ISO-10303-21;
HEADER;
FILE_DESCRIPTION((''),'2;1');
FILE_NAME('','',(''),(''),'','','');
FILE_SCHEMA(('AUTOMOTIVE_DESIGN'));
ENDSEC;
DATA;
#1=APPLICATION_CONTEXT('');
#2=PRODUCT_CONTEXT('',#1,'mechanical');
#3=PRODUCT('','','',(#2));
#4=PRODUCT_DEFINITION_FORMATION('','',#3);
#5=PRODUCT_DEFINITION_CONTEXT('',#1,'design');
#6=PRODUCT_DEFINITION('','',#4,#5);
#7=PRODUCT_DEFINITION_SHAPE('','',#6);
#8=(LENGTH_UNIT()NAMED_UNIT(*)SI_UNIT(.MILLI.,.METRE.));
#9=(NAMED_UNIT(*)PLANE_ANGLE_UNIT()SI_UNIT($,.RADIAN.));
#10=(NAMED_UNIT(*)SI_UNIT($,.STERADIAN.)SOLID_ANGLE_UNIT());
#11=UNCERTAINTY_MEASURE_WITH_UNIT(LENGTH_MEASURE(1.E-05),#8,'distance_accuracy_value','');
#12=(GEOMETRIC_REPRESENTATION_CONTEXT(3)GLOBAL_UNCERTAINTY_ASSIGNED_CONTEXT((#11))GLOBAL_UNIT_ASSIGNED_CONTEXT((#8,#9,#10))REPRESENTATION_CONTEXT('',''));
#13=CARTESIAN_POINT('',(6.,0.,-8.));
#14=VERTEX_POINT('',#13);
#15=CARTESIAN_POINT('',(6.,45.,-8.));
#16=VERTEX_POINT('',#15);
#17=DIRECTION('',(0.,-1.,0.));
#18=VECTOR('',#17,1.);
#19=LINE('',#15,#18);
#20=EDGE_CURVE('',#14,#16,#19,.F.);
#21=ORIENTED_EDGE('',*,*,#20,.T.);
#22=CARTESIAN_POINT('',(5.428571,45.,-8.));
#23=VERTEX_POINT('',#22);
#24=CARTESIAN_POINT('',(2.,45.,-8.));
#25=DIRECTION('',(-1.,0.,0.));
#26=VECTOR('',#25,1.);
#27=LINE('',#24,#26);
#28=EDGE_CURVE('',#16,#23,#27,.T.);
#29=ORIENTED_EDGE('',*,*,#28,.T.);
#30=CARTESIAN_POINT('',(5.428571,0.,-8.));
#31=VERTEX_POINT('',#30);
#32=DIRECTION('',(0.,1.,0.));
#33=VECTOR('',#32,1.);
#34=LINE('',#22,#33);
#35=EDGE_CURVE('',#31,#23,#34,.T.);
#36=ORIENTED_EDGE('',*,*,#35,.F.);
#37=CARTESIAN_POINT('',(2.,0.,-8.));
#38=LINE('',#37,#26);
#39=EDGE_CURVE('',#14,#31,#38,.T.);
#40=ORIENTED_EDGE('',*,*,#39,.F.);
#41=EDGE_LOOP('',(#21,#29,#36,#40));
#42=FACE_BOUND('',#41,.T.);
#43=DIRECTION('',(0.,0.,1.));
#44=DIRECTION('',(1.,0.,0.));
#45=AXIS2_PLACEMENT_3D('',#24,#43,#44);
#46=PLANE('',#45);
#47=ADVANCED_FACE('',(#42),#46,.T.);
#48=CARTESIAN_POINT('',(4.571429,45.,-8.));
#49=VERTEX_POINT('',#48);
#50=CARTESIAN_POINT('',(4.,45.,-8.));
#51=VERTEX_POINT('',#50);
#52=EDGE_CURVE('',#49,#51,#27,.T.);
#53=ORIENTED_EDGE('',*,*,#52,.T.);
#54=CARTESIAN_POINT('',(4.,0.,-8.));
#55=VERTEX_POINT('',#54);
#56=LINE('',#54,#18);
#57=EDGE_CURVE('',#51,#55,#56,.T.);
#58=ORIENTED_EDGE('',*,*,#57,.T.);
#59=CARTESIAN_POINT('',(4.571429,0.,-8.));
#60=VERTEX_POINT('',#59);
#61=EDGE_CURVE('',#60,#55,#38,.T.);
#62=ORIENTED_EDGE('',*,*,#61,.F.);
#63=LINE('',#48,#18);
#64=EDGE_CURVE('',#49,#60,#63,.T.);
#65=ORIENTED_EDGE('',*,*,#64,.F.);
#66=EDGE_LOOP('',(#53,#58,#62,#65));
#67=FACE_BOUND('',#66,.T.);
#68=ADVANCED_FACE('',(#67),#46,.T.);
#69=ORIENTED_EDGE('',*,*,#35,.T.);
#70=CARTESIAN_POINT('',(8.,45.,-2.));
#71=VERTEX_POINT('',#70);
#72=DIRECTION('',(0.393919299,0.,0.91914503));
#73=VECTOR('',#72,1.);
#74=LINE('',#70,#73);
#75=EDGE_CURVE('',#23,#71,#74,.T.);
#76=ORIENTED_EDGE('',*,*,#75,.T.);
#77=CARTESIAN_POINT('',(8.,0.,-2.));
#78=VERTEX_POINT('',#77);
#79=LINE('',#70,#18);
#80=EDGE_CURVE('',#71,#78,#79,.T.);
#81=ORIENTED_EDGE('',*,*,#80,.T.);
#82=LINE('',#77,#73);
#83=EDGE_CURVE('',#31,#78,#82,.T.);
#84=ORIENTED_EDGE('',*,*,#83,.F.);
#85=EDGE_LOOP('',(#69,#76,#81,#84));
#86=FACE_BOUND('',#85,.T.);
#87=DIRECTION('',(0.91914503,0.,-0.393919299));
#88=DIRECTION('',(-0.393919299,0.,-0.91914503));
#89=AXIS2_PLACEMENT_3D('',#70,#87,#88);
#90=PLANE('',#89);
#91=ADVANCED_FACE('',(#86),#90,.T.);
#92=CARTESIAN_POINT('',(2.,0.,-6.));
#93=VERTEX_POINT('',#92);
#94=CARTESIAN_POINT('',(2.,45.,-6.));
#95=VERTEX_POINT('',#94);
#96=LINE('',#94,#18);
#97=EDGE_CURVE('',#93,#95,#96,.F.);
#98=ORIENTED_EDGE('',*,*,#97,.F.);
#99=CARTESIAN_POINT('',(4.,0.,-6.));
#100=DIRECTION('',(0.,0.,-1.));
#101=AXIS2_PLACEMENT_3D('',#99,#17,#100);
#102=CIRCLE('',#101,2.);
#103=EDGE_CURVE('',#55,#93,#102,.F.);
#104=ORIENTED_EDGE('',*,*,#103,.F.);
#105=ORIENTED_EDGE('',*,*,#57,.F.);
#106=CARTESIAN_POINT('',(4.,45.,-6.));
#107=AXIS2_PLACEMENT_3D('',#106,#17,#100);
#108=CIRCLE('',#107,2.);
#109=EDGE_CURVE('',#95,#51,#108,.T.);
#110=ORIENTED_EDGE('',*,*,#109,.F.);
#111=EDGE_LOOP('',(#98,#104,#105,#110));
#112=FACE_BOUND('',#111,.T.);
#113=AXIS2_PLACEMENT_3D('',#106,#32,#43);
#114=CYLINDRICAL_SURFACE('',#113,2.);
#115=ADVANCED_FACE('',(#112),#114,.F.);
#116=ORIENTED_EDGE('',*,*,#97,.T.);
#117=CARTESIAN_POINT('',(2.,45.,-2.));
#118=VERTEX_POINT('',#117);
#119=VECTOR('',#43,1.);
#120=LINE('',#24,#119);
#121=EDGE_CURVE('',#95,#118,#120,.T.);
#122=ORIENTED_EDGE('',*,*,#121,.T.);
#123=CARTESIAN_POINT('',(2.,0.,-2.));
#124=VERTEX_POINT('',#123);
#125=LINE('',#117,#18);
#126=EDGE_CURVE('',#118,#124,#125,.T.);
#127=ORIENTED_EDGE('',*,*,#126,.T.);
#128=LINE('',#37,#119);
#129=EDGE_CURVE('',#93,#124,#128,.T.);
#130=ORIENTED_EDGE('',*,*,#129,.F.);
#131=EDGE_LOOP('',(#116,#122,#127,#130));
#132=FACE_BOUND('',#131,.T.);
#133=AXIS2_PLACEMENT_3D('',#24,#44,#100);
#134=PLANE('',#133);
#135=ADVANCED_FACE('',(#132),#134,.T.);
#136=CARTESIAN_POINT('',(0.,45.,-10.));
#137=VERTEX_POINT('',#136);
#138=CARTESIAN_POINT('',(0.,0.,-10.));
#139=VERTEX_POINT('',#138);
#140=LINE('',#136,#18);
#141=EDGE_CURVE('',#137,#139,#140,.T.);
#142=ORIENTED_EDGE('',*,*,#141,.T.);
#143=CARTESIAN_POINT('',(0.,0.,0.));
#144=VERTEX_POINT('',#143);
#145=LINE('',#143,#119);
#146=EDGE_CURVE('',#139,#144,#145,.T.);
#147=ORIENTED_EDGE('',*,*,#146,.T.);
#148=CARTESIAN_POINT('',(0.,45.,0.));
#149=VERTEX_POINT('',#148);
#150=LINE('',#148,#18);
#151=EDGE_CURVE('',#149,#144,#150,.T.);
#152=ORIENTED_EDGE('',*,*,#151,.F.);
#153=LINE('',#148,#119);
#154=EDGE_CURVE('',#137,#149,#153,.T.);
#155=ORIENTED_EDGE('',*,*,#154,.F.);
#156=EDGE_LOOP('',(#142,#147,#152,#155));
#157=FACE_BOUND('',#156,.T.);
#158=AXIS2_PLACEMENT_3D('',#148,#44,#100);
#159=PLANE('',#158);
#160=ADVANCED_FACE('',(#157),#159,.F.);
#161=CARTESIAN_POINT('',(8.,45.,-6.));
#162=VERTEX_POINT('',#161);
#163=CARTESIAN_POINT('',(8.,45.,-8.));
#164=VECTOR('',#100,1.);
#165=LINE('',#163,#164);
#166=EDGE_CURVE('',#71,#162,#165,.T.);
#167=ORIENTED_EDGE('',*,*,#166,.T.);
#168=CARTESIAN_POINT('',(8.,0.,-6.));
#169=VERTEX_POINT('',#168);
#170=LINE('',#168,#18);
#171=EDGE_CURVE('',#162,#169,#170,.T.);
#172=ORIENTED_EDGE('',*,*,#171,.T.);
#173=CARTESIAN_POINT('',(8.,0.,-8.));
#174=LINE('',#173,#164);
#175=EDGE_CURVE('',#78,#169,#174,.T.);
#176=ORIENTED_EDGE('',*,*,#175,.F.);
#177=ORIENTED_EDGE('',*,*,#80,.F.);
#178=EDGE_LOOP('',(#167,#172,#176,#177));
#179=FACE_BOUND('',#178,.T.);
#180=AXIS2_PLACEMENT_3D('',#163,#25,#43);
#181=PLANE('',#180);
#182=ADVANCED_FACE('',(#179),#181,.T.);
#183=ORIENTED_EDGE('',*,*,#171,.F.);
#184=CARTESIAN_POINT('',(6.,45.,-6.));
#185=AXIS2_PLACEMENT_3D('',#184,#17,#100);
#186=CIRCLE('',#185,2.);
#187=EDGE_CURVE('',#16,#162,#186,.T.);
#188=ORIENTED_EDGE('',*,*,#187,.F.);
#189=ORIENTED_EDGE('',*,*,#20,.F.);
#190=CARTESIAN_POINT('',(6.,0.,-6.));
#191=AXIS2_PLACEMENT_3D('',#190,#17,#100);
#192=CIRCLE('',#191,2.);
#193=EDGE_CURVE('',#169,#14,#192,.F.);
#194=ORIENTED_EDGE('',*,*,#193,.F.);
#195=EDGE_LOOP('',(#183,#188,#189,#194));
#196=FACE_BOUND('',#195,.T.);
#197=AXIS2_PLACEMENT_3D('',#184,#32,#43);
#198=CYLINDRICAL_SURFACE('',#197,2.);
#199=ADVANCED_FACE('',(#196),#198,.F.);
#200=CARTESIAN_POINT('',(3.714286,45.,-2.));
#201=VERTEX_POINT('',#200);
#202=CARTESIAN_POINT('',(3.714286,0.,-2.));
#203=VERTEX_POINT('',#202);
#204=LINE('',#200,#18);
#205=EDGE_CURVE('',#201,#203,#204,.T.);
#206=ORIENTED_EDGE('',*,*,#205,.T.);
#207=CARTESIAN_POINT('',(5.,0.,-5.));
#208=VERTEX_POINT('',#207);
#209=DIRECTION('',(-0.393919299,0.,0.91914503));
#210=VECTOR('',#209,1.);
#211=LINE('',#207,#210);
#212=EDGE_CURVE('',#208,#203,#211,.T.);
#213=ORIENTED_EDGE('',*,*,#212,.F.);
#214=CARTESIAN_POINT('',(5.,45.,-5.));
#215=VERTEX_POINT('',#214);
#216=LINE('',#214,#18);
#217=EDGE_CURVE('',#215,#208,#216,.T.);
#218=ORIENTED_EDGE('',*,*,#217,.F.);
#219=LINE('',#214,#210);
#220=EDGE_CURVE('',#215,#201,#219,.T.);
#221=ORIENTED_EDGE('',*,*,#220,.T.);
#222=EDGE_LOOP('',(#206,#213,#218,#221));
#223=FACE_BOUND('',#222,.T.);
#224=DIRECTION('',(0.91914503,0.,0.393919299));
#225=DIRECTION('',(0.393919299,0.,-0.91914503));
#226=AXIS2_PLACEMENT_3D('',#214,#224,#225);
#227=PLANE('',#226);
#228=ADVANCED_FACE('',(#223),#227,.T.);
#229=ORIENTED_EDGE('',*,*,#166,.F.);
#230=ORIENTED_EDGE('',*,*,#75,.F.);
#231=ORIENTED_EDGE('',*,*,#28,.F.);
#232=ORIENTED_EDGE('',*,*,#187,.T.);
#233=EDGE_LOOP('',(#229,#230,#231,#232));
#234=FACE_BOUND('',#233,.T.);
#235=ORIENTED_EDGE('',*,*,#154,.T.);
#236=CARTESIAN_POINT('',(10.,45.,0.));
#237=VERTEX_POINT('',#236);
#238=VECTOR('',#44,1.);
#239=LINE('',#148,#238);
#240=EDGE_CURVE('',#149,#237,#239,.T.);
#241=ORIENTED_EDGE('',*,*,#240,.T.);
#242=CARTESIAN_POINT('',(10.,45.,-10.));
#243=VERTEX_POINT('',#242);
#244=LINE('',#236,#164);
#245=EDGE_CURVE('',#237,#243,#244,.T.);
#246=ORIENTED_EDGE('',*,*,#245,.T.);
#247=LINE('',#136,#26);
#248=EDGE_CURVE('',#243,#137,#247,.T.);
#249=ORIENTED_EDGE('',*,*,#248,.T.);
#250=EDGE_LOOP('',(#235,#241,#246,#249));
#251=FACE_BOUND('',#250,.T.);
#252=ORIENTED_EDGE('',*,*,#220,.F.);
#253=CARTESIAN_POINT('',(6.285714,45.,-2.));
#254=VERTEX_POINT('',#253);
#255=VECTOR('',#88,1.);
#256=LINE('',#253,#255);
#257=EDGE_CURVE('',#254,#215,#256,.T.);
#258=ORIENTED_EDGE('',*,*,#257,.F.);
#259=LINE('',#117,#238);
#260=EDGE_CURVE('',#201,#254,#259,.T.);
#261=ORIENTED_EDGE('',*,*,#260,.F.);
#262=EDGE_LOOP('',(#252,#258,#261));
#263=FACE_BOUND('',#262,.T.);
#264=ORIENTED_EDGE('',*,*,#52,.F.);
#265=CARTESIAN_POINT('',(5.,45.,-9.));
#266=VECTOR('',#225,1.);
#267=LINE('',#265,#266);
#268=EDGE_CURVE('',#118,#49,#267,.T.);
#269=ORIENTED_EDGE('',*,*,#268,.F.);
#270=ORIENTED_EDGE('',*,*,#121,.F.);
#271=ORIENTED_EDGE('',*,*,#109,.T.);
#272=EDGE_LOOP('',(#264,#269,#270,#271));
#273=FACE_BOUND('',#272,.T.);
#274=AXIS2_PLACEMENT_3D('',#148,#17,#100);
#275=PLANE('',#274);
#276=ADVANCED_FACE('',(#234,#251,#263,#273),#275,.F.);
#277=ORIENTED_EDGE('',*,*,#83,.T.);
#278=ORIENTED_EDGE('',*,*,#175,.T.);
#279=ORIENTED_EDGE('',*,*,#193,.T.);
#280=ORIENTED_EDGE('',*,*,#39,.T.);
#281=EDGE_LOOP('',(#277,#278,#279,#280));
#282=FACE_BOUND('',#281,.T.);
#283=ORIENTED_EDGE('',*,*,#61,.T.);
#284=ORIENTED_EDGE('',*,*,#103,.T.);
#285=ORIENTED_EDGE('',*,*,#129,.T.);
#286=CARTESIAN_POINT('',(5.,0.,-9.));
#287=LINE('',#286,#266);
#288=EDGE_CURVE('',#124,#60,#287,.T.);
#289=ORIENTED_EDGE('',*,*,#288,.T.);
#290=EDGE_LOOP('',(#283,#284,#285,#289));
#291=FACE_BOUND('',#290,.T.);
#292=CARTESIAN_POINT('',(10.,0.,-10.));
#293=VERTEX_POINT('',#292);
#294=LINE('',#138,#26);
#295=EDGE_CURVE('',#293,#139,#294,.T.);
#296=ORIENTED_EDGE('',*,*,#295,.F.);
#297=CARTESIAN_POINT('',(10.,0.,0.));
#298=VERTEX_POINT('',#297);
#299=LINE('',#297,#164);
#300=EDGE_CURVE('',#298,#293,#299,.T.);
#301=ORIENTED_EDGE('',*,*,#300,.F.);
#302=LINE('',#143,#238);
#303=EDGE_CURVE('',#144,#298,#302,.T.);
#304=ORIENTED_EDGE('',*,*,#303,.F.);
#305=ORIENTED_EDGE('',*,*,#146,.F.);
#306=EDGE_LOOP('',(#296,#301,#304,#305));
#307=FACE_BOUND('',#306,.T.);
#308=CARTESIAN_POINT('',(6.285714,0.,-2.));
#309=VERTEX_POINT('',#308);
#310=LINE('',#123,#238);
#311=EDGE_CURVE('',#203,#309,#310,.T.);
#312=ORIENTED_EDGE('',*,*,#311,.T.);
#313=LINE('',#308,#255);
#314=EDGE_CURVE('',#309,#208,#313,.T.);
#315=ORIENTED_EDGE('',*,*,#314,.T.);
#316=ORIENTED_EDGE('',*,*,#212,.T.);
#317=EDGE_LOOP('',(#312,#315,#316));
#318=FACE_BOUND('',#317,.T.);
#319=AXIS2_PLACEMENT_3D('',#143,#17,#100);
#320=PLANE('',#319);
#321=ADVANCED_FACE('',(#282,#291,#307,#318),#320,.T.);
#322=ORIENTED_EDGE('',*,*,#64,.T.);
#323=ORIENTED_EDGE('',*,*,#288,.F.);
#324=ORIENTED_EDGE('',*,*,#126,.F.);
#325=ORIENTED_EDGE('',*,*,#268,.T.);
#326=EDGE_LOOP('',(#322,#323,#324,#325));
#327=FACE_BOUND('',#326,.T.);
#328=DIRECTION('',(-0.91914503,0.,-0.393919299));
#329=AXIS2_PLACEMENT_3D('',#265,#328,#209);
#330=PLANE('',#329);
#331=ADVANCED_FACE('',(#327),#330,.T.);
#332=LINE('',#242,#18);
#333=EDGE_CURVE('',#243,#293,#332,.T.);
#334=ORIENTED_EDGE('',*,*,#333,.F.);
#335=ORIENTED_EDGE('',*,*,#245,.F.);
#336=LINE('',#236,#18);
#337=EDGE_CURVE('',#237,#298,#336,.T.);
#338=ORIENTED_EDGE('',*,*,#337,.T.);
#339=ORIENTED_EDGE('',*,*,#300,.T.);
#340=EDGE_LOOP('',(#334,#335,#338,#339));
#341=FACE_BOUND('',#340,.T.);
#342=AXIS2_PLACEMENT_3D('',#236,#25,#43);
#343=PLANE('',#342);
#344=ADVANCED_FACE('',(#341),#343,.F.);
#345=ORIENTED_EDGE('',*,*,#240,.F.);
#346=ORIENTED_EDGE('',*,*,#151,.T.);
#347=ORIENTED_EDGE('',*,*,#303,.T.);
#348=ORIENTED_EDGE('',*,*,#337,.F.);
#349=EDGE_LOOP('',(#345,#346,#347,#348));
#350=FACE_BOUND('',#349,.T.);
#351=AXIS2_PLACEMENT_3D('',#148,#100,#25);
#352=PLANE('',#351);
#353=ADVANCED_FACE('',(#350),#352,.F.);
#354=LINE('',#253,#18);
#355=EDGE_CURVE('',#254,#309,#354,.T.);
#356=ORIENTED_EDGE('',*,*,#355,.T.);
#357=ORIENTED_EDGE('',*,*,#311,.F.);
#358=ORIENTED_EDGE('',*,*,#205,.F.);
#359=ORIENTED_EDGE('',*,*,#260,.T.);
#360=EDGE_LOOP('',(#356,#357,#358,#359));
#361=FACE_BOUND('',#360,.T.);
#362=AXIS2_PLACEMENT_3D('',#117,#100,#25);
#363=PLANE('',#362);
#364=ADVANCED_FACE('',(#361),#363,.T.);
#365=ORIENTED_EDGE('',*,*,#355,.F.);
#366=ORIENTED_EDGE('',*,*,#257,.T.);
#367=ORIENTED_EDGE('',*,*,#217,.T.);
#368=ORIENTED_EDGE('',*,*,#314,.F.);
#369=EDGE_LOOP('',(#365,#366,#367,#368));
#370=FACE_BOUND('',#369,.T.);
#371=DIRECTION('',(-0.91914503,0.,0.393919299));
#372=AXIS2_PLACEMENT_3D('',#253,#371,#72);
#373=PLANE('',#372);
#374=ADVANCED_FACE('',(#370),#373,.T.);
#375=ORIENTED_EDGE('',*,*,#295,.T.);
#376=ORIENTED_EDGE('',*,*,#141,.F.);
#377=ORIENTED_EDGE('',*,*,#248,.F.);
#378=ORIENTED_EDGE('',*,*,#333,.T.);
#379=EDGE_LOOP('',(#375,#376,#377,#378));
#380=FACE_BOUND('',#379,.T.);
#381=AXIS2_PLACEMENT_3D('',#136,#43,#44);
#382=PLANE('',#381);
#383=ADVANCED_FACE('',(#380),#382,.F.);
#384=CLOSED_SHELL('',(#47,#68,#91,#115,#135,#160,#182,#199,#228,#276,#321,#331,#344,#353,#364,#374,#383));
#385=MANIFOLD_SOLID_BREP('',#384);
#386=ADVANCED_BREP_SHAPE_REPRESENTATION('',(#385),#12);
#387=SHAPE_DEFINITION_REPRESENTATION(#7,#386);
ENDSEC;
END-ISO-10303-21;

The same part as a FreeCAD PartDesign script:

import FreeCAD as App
import Part
import Sketcher


def edges_at(feature, points):
    """Names of the edges that pass closest to the given points."""
    edges = feature.Shape.Edges
    near = lambda p: min(range(len(edges)), key=lambda i: edges[i].distToShape(Part.Vertex(*p))[0])
    return sorted({f"Edge{near(p) + 1}" for p in points})

doc = App.newDocument("Part")
body = doc.addObject("PartDesign::Body", "Body")

# Sketch on XZ plane
sketch1 = body.newObject("Sketcher::SketchObject", "Sketch")
sketch1.AttachmentSupport = (doc.getObject("XZ_Plane"), [""])
sketch1.MapMode = "FlatFace"
sketch1.addGeometry(Part.LineSegment(App.Vector(0, -10, 0), App.Vector(0, 0, 0)), False)
sketch1.addGeometry(Part.LineSegment(App.Vector(0, 0, 0), App.Vector(10, 0, 0)), False)
sketch1.addGeometry(Part.LineSegment(App.Vector(10, 0, 0), App.Vector(10, -10, 0)), False)
sketch1.addGeometry(Part.LineSegment(App.Vector(10, -10, 0), App.Vector(0, -10, 0)), False)
sketch1.addGeometry(Part.LineSegment(App.Vector(8, -2, 0), App.Vector(2, -2, 0)), False)
sketch1.addGeometry(Part.LineSegment(App.Vector(2, -2, 0), App.Vector(2, -8, 0)), False)
sketch1.addGeometry(Part.LineSegment(App.Vector(2, -8, 0), App.Vector(8, -8, 0)), False)
sketch1.addGeometry(Part.LineSegment(App.Vector(8, -8, 0), App.Vector(8, -2, 0)), False)
sketch1.addConstraint(Sketcher.Constraint("Coincident", 0, 2, 1, 1))
sketch1.addConstraint(Sketcher.Constraint("Coincident", 1, 2, 2, 1))
sketch1.addConstraint(Sketcher.Constraint("Coincident", 2, 2, 3, 1))
sketch1.addConstraint(Sketcher.Constraint("Coincident", 3, 2, 0, 1))
sketch1.addConstraint(Sketcher.Constraint("Coincident", 4, 2, 5, 1))
sketch1.addConstraint(Sketcher.Constraint("Coincident", 5, 2, 6, 1))
sketch1.addConstraint(Sketcher.Constraint("Coincident", 6, 2, 7, 1))
sketch1.addConstraint(Sketcher.Constraint("Coincident", 7, 2, 4, 1))
sketch1.addConstraint(Sketcher.Constraint("Vertical", 0))
sketch1.addConstraint(Sketcher.Constraint("Horizontal", 1))
sketch1.addConstraint(Sketcher.Constraint("Vertical", 2))
sketch1.addConstraint(Sketcher.Constraint("Horizontal", 3))
sketch1.addConstraint(Sketcher.Constraint("Horizontal", 4))
sketch1.addConstraint(Sketcher.Constraint("Vertical", 5))
sketch1.addConstraint(Sketcher.Constraint("Horizontal", 6))
sketch1.addConstraint(Sketcher.Constraint("Vertical", 7))
sketch1.addConstraint(Sketcher.Constraint("Coincident", 0, 2, -1, 1))
sketch1.addConstraint(Sketcher.Constraint("Equal", 3, 0))
sketch1.addConstraint(Sketcher.Constraint("Equal", 6, 5))
sketch1.addConstraint(Sketcher.Constraint("DistanceX", 1, 1, 1, 2, 10.0))
sketch1.addConstraint(Sketcher.Constraint("DistanceX", 4, 2, 4, 1, 6.0))
sketch1.addConstraint(Sketcher.Constraint("DistanceX", -1, 1, 4, 2, 2.0))
sketch1.addConstraint(Sketcher.Constraint("DistanceY", 4, 2, -1, 1, 2.0))
pad1 = body.newObject("PartDesign::Pad", "Pad")
pad1.Profile = sketch1
pad1.Length = 45
pad1.Reversed = True

# Sketch on XZ plane
sketch2 = body.newObject("Sketcher::SketchObject", "Sketch001")
sketch2.AttachmentSupport = (doc.getObject("XZ_Plane"), [""])
sketch2.MapMode = "FlatFace"
sketch2.addGeometry(Part.LineSegment(App.Vector(5, -9, 0), App.Vector(8, -2, 0)), False)
sketch2.addGeometry(Part.LineSegment(App.Vector(8, -2, 0), App.Vector(6.3, -2, 0)), False)
sketch2.addGeometry(Part.LineSegment(App.Vector(6.3, -2, 0), App.Vector(5, -5, 0)), False)
sketch2.addGeometry(Part.LineSegment(App.Vector(5, -5, 0), App.Vector(3.7, -2, 0)), False)
sketch2.addGeometry(Part.LineSegment(App.Vector(3.7, -2, 0), App.Vector(2, -2, 0)), False)
sketch2.addGeometry(Part.LineSegment(App.Vector(2, -2, 0), App.Vector(5, -9, 0)), False)
sketch2.addConstraint(Sketcher.Constraint("Coincident", 0, 2, 1, 1))
sketch2.addConstraint(Sketcher.Constraint("Coincident", 1, 2, 2, 1))
sketch2.addConstraint(Sketcher.Constraint("Coincident", 2, 2, 3, 1))
sketch2.addConstraint(Sketcher.Constraint("Coincident", 3, 2, 4, 1))
sketch2.addConstraint(Sketcher.Constraint("Coincident", 4, 2, 5, 1))
sketch2.addConstraint(Sketcher.Constraint("Coincident", 5, 2, 0, 1))
sketch2.addConstraint(Sketcher.Constraint("Horizontal", 1))
sketch2.addConstraint(Sketcher.Constraint("Horizontal", 4))
sketch2.addConstraint(Sketcher.Constraint("Parallel", 0, 2))
sketch2.addConstraint(Sketcher.Constraint("Parallel", 3, 5))
sketch2.addConstraint(Sketcher.Constraint("Horizontal", 1, 2, 3, 2))
sketch2.addConstraint(Sketcher.Constraint("Vertical", 2, 2, 5, 2))
sketch2.addConstraint(Sketcher.Constraint("Equal", 1, 4))
sketch2.addConstraint(Sketcher.Constraint("DistanceX", -1, 1, 0, 2, 8.0))
sketch2.addConstraint(Sketcher.Constraint("DistanceY", 0, 2, -1, 1, 2.0))
sketch2.addConstraint(Sketcher.Constraint("DistanceX", -1, 1, 2, 2, 5.0))
sketch2.addConstraint(Sketcher.Constraint("DistanceY", 2, 2, -1, 1, 5.0))
sketch2.addConstraint(Sketcher.Constraint("DistanceY", 5, 2, -1, 1, 9.0))
pad2 = body.newObject("PartDesign::Pad", "Pad001")
pad2.Profile = sketch2
pad2.Length = 45
pad2.Reversed = True
doc.recompute()

fillet = body.newObject("PartDesign::Fillet", "Fillet")
fillet.Base = (pad2, edges_at(pad2, [(2, 22.5, -8), (8, 22.5, -8)]))
fillet.Radius = 2

doc.recompute()
